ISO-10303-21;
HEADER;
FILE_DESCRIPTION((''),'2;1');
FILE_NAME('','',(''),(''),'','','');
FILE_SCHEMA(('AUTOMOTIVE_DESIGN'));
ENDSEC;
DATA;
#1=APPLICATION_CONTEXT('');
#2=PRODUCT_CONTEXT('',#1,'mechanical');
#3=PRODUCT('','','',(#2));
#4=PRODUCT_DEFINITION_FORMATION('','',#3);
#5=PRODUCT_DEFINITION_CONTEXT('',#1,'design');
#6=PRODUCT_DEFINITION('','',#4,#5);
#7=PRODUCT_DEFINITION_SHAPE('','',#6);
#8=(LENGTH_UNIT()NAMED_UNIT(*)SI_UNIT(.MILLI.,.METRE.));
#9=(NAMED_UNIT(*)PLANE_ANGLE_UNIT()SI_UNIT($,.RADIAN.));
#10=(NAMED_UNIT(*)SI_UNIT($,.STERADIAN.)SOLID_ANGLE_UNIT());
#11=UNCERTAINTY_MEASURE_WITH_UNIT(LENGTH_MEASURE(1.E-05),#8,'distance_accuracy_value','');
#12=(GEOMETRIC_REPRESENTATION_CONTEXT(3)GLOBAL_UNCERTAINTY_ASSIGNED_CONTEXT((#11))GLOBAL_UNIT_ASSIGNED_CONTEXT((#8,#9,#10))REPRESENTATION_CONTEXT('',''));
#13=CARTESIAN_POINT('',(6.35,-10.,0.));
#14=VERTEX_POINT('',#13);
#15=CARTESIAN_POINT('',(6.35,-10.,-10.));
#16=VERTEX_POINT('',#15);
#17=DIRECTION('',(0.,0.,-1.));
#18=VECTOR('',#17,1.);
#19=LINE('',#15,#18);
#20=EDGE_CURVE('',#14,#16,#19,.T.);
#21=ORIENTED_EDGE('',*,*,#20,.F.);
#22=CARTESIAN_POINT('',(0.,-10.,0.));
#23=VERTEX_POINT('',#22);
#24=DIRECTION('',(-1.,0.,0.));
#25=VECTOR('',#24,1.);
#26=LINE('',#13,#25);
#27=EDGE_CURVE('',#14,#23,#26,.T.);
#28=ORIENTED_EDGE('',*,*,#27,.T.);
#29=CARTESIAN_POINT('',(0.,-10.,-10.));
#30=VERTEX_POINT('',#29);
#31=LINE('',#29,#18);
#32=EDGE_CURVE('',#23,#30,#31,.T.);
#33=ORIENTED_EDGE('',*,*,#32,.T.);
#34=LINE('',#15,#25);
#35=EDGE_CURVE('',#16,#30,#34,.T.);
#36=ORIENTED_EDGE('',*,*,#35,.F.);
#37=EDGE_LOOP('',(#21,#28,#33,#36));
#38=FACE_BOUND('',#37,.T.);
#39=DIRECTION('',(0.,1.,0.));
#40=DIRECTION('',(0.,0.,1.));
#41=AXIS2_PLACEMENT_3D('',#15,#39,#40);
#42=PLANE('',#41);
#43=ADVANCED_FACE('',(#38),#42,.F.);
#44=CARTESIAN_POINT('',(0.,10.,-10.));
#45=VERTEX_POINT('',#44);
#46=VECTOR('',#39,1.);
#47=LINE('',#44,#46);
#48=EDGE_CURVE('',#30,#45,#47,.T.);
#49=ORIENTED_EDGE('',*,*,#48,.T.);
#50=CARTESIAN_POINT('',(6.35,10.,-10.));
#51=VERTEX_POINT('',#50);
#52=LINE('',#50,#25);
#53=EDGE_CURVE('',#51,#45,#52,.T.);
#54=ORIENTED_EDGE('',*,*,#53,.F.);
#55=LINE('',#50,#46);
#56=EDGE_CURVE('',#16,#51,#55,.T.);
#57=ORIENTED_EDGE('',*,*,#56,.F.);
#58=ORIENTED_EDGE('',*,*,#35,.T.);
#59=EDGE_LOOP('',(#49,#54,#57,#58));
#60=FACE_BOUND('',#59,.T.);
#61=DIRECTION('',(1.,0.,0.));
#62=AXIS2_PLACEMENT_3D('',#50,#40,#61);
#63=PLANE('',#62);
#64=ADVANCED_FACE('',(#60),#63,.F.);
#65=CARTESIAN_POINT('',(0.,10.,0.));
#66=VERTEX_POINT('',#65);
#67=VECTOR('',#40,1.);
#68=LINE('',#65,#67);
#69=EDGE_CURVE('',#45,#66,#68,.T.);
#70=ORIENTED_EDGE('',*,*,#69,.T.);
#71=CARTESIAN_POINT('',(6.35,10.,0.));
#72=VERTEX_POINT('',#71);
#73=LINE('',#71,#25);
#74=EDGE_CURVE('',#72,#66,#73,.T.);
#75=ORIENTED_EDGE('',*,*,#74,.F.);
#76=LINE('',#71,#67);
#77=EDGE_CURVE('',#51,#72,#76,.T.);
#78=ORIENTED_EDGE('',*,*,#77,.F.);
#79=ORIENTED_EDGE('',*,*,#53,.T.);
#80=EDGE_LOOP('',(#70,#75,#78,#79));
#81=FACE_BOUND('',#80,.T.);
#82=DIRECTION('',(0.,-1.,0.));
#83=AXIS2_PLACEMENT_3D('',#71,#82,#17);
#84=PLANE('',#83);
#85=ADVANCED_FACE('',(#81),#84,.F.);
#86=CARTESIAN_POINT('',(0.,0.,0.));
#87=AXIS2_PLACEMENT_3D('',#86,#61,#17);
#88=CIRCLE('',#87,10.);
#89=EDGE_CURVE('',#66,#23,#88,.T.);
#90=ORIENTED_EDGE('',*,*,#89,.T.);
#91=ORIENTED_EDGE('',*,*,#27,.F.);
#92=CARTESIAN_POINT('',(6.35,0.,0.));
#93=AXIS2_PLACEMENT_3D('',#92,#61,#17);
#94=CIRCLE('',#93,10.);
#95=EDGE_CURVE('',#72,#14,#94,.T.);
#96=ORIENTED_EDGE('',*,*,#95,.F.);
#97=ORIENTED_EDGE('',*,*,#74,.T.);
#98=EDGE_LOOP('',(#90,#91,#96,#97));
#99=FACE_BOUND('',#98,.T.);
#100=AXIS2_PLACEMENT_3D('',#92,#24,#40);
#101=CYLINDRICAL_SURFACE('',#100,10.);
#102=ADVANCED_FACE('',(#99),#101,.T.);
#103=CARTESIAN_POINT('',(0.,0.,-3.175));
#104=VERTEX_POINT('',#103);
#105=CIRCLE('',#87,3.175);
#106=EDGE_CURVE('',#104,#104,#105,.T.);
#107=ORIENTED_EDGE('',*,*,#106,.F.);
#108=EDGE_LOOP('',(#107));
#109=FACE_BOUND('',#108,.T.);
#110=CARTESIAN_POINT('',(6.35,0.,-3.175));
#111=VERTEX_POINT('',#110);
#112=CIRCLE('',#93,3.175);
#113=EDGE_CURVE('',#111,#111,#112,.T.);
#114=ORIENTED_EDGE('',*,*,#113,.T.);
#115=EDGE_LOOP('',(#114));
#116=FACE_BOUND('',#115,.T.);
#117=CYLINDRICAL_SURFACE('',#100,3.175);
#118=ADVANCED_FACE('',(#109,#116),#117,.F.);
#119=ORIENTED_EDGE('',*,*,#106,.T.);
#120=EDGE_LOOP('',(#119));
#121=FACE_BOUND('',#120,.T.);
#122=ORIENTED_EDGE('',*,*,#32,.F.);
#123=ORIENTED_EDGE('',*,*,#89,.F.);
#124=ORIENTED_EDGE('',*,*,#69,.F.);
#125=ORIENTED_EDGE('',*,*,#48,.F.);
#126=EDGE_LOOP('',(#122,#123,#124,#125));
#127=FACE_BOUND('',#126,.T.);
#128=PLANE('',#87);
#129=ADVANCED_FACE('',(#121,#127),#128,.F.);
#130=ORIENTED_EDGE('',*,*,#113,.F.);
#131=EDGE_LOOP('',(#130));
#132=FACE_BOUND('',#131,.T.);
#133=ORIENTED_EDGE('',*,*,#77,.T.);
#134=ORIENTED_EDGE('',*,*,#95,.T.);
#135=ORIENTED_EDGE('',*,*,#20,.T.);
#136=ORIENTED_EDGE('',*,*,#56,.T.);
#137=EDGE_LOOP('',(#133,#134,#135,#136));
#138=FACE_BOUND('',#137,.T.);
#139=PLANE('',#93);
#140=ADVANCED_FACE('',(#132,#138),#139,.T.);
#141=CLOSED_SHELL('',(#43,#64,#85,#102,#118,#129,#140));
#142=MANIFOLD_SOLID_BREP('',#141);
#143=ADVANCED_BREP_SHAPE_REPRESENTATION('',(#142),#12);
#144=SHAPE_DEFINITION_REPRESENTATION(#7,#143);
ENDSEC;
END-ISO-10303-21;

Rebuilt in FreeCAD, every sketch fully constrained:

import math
import FreeCAD as App
import Part
import Sketcher
from FreeCAD import Vector
Q = App.Units.Quantity

doc = App.newDocument("Part")
body = doc.addObject("PartDesign::Body", "Body")

# Sketch on YZ plane
sketch1 = body.newObject("Sketcher::SketchObject", "Sketch")
sketch1.AttachmentSupport = (doc.getObject("YZ_Plane"), [""])
sketch1.MapMode = "FlatFace"
sketch1.addGeometry(Part.LineSegment(Vector(10, -10, 0), Vector(10, 0, 0)), False)
sketch1.addGeometry(Part.ArcOfCircle(Part.Circle(Vector(0, 0, 0), Vector(0, 0, 1), 10), math.radians(0), math.radians(180)), False)
sketch1.addGeometry(Part.LineSegment(Vector(-10, 0, 0), Vector(-10, -10, 0)), False)
sketch1.addGeometry(Part.LineSegment(Vector(-10, -10, 0), Vector(10, -10, 0)), False)
sketch1.addGeometry(Part.Circle(Vector(0, 0, 0), Vector(0, 0, 1), 3.175), False)
sketch1.addConstraint(Sketcher.Constraint("Tangent", 0, 2, 1, 1))
sketch1.addConstraint(Sketcher.Constraint("Tangent", 1, 2, 2, 1))
sketch1.addConstraint(Sketcher.Constraint("Coincident", 2, 2, 3, 1))
sketch1.addConstraint(Sketcher.Constraint("Coincident", 3, 2, 0, 1))
sketch1.addConstraint(Sketcher.Constraint("Vertical", 0))
sketch1.addConstraint(Sketcher.Constraint("Vertical", 2))
sketch1.addConstraint(Sketcher.Constraint("Horizontal", 3))
sketch1.addConstraint(Sketcher.Constraint("Coincident", 1, 3, -1, 1))
sketch1.addConstraint(Sketcher.Constraint("Coincident", 4, 3, -1, 1))
sketch1.addConstraint(Sketcher.Constraint("Radius", 1, Q("10 mm")))
sketch1.addConstraint(Sketcher.Constraint("Diameter", 4, Q("6.35 mm")))
sketch1.addConstraint(Sketcher.Constraint("DistanceY", 0, 1, 0, 2, Q("10 mm")))
pad1 = body.newObject("PartDesign::Pad", "Pad")
pad1.Profile = sketch1
pad1.Length = 6.35

doc.recompute()
